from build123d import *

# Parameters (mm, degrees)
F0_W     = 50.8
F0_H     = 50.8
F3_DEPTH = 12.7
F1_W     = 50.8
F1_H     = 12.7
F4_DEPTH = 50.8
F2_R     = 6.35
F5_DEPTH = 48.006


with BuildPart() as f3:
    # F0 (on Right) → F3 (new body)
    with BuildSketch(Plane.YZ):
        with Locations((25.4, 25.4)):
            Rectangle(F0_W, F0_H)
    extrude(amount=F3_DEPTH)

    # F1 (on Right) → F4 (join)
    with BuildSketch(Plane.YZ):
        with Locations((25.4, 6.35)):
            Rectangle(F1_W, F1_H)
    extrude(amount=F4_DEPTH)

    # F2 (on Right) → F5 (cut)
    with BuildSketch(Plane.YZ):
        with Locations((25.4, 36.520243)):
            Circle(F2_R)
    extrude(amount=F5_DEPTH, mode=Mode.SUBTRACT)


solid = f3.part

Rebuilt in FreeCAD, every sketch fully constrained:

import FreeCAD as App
import Part
import Sketcher

V = App.Vector
Q = App.Units.Quantity

doc = App.newDocument("Part")
body = doc.addObject("PartDesign::Body", "Body")

# Sketch on YZ plane
sketch1 = body.newObject("Sketcher::SketchObject", "Sketch")
sketch1.AttachmentSupport = (doc.getObject("YZ_Plane"), [""])
sketch1.MapMode = "FlatFace"
sketch1.addGeometry(Part.LineSegment(V(0, 51, 0), V(0, 0, 0)), False)
sketch1.addGeometry(Part.LineSegment(V(0, 0, 0), V(51, 0, 0)), False)
sketch1.addGeometry(Part.LineSegment(V(51, 0, 0), V(51, 51, 0)), False)
sketch1.addGeometry(Part.LineSegment(V(51, 51, 0), V(0, 51, 0)), False)
sketch1.addConstraint(Sketcher.Constraint("Coincident", 0, 2, 1, 1))
sketch1.addConstraint(Sketcher.Constraint("Coincident", 1, 2, 2, 1))
sketch1.addConstraint(Sketcher.Constraint("Coincident", 2, 2, 3, 1))
sketch1.addConstraint(Sketcher.Constraint("Coincident", 3, 2, 0, 1))
sketch1.addConstraint(Sketcher.Constraint("Vertical", 0))
sketch1.addConstraint(Sketcher.Constraint("Horizontal", 1))
sketch1.addConstraint(Sketcher.Constraint("Vertical", 2))
sketch1.addConstraint(Sketcher.Constraint("Horizontal", 3))
sketch1.addConstraint(Sketcher.Constraint("Coincident", 0, 2, -1, 1))
sketch1.addConstraint(Sketcher.Constraint("Equal", 3, 0))
sketch1.addConstraint(Sketcher.Constraint("DistanceX", 1, 1, 1, 2, Q("2 in")))
pad1 = body.newObject("PartDesign::Pad", "Pad")
pad1.Profile = sketch1
pad1.Length = Q("0.5 in")

# Sketch on YZ plane
sketch2 = body.newObject("Sketcher::SketchObject", "Sketch001")
sketch2.AttachmentSupport = (doc.getObject("YZ_Plane"), [""])
sketch2.MapMode = "FlatFace"
sketch2.addGeometry(Part.LineSegment(V(0, 13, 0), V(0, 0, 0)), False)
sketch2.addGeometry(Part.LineSegment(V(0, 0, 0), V(51, 0, 0)), False)
sketch2.addGeometry(Part.LineSegment(V(51, 0, 0), V(51, 13, 0)), False)
sketch2.addGeometry(Part.LineSegment(V(51, 13, 0), V(0, 13, 0)), False)
sketch2.addConstraint(Sketcher.Constraint("Coincident", 0, 2, 1, 1))
sketch2.addConstraint(Sketcher.Constraint("Coincident", 1, 2, 2, 1))
sketch2.addConstraint(Sketcher.Constraint("Coincident", 2, 2, 3, 1))
sketch2.addConstraint(Sketcher.Constraint("Coincident", 3, 2, 0, 1))
sketch2.addConstraint(Sketcher.Constraint("Vertical", 0))
sketch2.addConstraint(Sketcher.Constraint("Horizontal", 1))
sketch2.addConstraint(Sketcher.Constraint("Vertical", 2))
sketch2.addConstraint(Sketcher.Constraint("Horizontal", 3))
sketch2.addConstraint(Sketcher.Constraint("Coincident", 0, 2, -1, 1))
sketch2.addConstraint(Sketcher.Constraint("DistanceX", 1, 1, 1, 2, Q("2 in")))
sketch2.addConstraint(Sketcher.Constraint("DistanceY", 0, 2, 0, 1, Q("0.5 in")))
pad2 = body.newObject("PartDesign::Pad", "Pad001")
pad2.Profile = sketch2
pad2.Length = Q("2 in")

# Sketch on YZ plane
sketch3 = body.newObject("Sketcher::SketchObject", "Sketch002")
sketch3.AttachmentSupport = (doc.getObject("YZ_Plane"), [""])
sketch3.MapMode = "FlatFace"
sketch3.addGeometry(Part.Circle(V(25, 37, 0), V(0, 0, 1), 6), False)
sketch3.addConstraint(Sketcher.Constraint("Diameter", 0, Q("0.5 in")))
sketch3.addConstraint(Sketcher.Constraint("DistanceX", -1, 1, 0, 3, Q("1 in")))
sketch3.addConstraint(Sketcher.Constraint("DistanceY", -1, 1, 0, 3, Q("36.520243 mm")))
pocket1 = body.newObject("PartDesign::Pocket", "Pocket")
pocket1.Profile = sketch3
pocket1.Length = Q("1.89 in")
pocket1.Reversed = True

doc.recompute()
